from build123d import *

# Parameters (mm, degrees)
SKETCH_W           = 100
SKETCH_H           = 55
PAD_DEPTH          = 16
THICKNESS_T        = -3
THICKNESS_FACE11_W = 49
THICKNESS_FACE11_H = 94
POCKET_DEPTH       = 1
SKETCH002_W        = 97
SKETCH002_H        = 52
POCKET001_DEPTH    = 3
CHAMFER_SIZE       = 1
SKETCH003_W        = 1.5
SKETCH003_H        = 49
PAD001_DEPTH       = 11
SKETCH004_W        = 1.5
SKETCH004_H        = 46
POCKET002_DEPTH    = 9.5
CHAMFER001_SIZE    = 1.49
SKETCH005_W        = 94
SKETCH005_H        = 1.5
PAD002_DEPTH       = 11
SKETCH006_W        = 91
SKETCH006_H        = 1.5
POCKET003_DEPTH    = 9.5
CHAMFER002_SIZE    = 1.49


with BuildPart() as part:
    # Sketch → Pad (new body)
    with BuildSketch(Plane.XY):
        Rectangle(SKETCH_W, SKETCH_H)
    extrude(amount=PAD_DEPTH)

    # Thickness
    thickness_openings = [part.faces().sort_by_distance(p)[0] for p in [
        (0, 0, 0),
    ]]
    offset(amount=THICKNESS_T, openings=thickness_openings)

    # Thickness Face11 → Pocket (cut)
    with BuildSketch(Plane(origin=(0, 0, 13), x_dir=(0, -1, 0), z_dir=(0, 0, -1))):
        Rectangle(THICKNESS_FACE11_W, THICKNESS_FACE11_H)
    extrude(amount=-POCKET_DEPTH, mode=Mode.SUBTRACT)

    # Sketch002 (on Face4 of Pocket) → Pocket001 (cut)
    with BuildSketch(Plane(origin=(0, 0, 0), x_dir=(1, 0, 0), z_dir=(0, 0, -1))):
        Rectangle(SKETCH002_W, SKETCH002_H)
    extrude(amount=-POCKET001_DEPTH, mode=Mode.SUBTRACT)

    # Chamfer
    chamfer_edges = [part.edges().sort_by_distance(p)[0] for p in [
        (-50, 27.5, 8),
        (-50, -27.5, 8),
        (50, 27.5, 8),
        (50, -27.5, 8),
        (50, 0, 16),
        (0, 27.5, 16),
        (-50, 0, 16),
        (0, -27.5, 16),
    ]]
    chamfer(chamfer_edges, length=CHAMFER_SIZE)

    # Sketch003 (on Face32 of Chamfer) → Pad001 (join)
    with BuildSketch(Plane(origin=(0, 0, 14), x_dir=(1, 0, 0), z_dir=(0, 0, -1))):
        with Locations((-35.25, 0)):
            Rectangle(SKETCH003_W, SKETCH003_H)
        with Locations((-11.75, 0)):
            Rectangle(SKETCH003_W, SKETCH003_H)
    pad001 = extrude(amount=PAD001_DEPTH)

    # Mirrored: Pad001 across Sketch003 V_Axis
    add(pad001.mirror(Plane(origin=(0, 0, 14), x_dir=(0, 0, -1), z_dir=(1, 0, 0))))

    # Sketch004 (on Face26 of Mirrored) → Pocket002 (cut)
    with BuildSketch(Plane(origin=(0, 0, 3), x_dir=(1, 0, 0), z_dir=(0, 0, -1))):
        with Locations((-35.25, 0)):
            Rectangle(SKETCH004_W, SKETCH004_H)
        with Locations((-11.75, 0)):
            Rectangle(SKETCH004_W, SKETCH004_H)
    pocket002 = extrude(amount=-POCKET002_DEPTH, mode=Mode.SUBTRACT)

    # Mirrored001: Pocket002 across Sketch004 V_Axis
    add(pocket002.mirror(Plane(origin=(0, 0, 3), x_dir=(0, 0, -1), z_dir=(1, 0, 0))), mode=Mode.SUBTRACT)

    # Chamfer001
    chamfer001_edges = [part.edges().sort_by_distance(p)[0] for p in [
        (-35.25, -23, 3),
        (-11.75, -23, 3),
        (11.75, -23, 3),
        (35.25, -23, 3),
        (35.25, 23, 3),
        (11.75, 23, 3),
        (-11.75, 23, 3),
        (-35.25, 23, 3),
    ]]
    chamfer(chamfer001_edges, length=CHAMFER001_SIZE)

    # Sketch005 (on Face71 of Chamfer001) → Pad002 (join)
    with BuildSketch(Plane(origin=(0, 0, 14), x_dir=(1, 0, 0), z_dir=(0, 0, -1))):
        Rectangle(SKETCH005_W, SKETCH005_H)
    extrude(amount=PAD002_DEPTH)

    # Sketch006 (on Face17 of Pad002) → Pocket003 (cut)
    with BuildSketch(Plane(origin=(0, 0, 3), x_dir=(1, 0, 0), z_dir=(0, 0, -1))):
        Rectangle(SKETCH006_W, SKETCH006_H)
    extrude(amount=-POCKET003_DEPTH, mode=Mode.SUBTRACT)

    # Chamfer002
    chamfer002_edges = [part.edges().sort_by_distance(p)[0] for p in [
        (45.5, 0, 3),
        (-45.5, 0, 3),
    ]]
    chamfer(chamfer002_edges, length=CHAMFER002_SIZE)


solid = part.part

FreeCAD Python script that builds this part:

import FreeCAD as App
import Part
import Sketcher

V = App.Vector
Q = App.Units.Quantity


def edges_at(feature, points):
    """Names of the edges that pass closest to the given points."""
    edges = feature.Shape.Edges
    near = lambda p: min(range(len(edges)), key=lambda i: edges[i].distToShape(Part.Vertex(*p))[0])
    return sorted({f"Edge{near(p) + 1}" for p in points})


def faces_at(feature, points):
    """Names of the faces that lie closest to the given points."""
    faces = feature.Shape.Faces
    near = lambda p: min(range(len(faces)), key=lambda i: faces[i].distToShape(Part.Vertex(*p))[0])
    return sorted({f"Face{near(p) + 1}" for p in points})


def add_polygon(sketch, points):
    """Adds a closed chain of lines whose ends are joined by coincident constraints."""
    first, n = sketch.GeometryCount, len(points)
    for a, b in zip(points, points[1:] + points[:1]):
        sketch.addGeometry(Part.LineSegment(App.Vector(*a, 0), App.Vector(*b, 0)), False)
    for i in range(n):
        sketch.addConstraint(Sketcher.Constraint("Coincident", first + i, 2, first + (i + 1) % n, 1))

doc = App.newDocument("Part")
body = doc.addObject("PartDesign::Body", "Body")

# Sketch on XY plane
sketch1 = body.newObject("Sketcher::SketchObject", "Sketch")
sketch1.AttachmentSupport = (doc.getObject("XY_Plane"), [""])
sketch1.MapMode = "FlatFace"
add_polygon(sketch1, [(-50, 28), (-50, -28), (50, -28), (50, 28)])  # lines 0-3
sketch1.addConstraint([
    Sketcher.Constraint("Vertical", 0),
    Sketcher.Constraint("Horizontal", 1),
    Sketcher.Constraint("Vertical", 2),
    Sketcher.Constraint("Horizontal", 3),
    Sketcher.Constraint("Symmetric", 0, 2, 2, 2, -1, 1),
    Sketcher.Constraint("DistanceX", 1, 1, 1, 2, Q("100 mm")),
    Sketcher.Constraint("DistanceY", 0, 2, 0, 1, Q("55 mm")),
])
pad1 = body.newObject("PartDesign::Pad", "Pad")
pad1.Profile = sketch1
pad1.Length = 16
doc.recompute()

thickness = body.newObject("PartDesign::Thickness", "Thickness")
thickness.Base = (pad1, faces_at(pad1, [(0, 0, 0)]))
thickness.Value = 3
thickness.Reversed = True
thickness.Join = "Arc"

# Sketch on XY plane
sketch2 = body.newObject("Sketcher::SketchObject", "Sketch001")
sketch2.AttachmentSupport = (doc.getObject("XY_Plane"), [""])
sketch2.MapMode = "FlatFace"
sketch2.AttachmentOffset = App.Placement(V(0, 0, 13), App.Rotation())
add_polygon(sketch2, [(-47, 24), (47, 24), (47, -24), (-47, -24)])  # lines 0-3
sketch2.addConstraint([
    Sketcher.Constraint("Horizontal", 0),
    Sketcher.Constraint("Vertical", 1),
    Sketcher.Constraint("Horizontal", 2),
    Sketcher.Constraint("Vertical", 3),
    Sketcher.Constraint("Symmetric", 0, 2, 2, 2, -1, 1),
    Sketcher.Constraint("DistanceX", 0, 1, 0, 2, Q("94 mm")),
    Sketcher.Constraint("DistanceY", 1, 2, 1, 1, Q("49 mm")),
])
pocket1 = body.newObject("PartDesign::Pocket", "Pocket")
pocket1.Profile = sketch2
pocket1.Length = 1
pocket1.Reversed = True

# Sketch on XY plane
sketch3 = body.newObject("Sketcher::SketchObject", "Sketch002")
sketch3.AttachmentSupport = (doc.getObject("XY_Plane"), [""])
sketch3.MapMode = "FlatFace"
add_polygon(sketch3, [(-48, -26), (-48, 26), (48, 26), (48, -26)])  # lines 0-3
sketch3.addConstraint([
    Sketcher.Constraint("Vertical", 0),
    Sketcher.Constraint("Horizontal", 1),
    Sketcher.Constraint("Vertical", 2),
    Sketcher.Constraint("Horizontal", 3),
    Sketcher.Constraint("Symmetric", 0, 2, 2, 2, -1, 1),
    Sketcher.Constraint("DistanceX", 1, 1, 1, 2, Q("97 mm")),
    Sketcher.Constraint("DistanceY", 0, 1, 0, 2, Q("52 mm")),
])
pocket2 = body.newObject("PartDesign::Pocket", "Pocket001")
pocket2.Profile = sketch3
pocket2.Length = 3
pocket2.Reversed = True
doc.recompute()

chamfer = body.newObject("PartDesign::Chamfer", "Chamfer")
chamfer.Base = (pocket2, edges_at(pocket2, [
    (-50, 27.5, 8),
    (-50, -27.5, 8),
    (50, 27.5, 8),
    (50, -27.5, 8),
    (50, 0, 16),
    (0, 27.5, 16),
    (-50, 0, 16),
    (0, -27.5, 16),
]))
chamfer.Size = 1

# Sketch on XY plane
sketch4 = body.newObject("Sketcher::SketchObject", "Sketch003")
sketch4.AttachmentSupport = (doc.getObject("XY_Plane"), [""])
sketch4.MapMode = "FlatFace"
sketch4.AttachmentOffset = App.Placement(V(0, 0, 14), App.Rotation())
add_polygon(sketch4, [(-36, -24.5), (-36, 24.5), (-34.5, 24.5), (-34.5, -24.5)])  # lines 0-3
add_polygon(sketch4, [(-12.5, -24.5), (-12.5, 24.5), (-11, 24.5), (-11, -24.5)])  # lines 4-7
sketch4.addConstraint([
    Sketcher.Constraint("Vertical", 0),
    Sketcher.Constraint("Horizontal", 1),
    Sketcher.Constraint("Vertical", 2),
    Sketcher.Constraint("Horizontal", 3),
    Sketcher.Constraint("Vertical", 4),
    Sketcher.Constraint("Horizontal", 5),
    Sketcher.Constraint("Vertical", 6),
    Sketcher.Constraint("Horizontal", 7),
    Sketcher.Constraint("Horizontal", 1, 2, 4, 2),
    Sketcher.Constraint("Horizontal", 3, 2, 6, 2),
    Sketcher.Constraint("Equal", 3, 5),
    Sketcher.Constraint("DistanceY", 0, 1, 0, 2, Q("49 mm")),
    Sketcher.Constraint("DistanceX", 1, 1, 1, 2, Q("1.5 mm")),
    Sketcher.Constraint("DistanceX", 0, 2, -1, 1, Q("36 mm")),
    Sketcher.Constraint("DistanceX", 5, 2, -1, 1, Q("11 mm")),
    Sketcher.Constraint("DistanceY", -1, 1, 0, 2, Q("24.5 mm")),
])
pad2 = body.newObject("PartDesign::Pad", "Pad001")
pad2.Profile = sketch4
pad2.Length = 11
pad2.Reversed = True
doc.recompute()

mirrored = body.newObject("PartDesign::Mirrored", "Mirrored")
mirrored.Originals = [pad2]
mirrored.MirrorPlane = (doc.getObject("YZ_Plane"), [""])
body.Tip = mirrored

# Sketch on XY plane
sketch5 = body.newObject("Sketcher::SketchObject", "Sketch004")
sketch5.AttachmentSupport = (doc.getObject("XY_Plane"), [""])
sketch5.MapMode = "FlatFace"
sketch5.AttachmentOffset = App.Placement(V(0, 0, 3), App.Rotation())
add_polygon(sketch5, [(-36, -23), (-36, 23), (-34.5, 23), (-34.5, -23)])  # lines 0-3
add_polygon(sketch5, [(-12.5, -23), (-12.5, 23), (-11, 23), (-11, -23)])  # lines 4-7
sketch5.addConstraint([
    Sketcher.Constraint("Vertical", 0),
    Sketcher.Constraint("Horizontal", 1),
    Sketcher.Constraint("Vertical", 2),
    Sketcher.Constraint("Horizontal", 3),
    Sketcher.Constraint("Vertical", 4),
    Sketcher.Constraint("Horizontal", 5),
    Sketcher.Constraint("Vertical", 6),
    Sketcher.Constraint("Horizontal", 7),
    Sketcher.Constraint("Horizontal", 1, 2, 4, 2),
    Sketcher.Constraint("Horizontal", 3, 2, 6, 2),
    Sketcher.Constraint("Equal", 3, 5),
    Sketcher.Constraint("DistanceY", 0, 1, 0, 2, Q("46 mm")),
    Sketcher.Constraint("DistanceX", 1, 1, 1, 2, Q("1.5 mm")),
    Sketcher.Constraint("DistanceX", 0, 2, -1, 1, Q("36 mm")),
    Sketcher.Constraint("DistanceY", -1, 1, 0, 2, Q("23 mm")),
    Sketcher.Constraint("DistanceX", 5, 2, -1, 1, Q("11 mm")),
])
pocket3 = body.newObject("PartDesign::Pocket", "Pocket002")
pocket3.Profile = sketch5
pocket3.Length = 9.5
pocket3.Reversed = True
doc.recompute()

mirrored2 = body.newObject("PartDesign::Mirrored", "Mirrored001")
mirrored2.Originals = [pocket3]
mirrored2.MirrorPlane = (doc.getObject("YZ_Plane"), [""])
body.Tip = mirrored2
doc.recompute()

chamfer2 = body.newObject("PartDesign::Chamfer", "Chamfer001")
chamfer2.Base = (mirrored2, edges_at(mirrored2, [
    (-35.25, -23, 3),
    (-11.75, -23, 3),
    (11.75, -23, 3),
    (35.25, -23, 3),
    (35.25, 23, 3),
    (11.75, 23, 3),
    (-11.75, 23, 3),
    (-35.25, 23, 3),
]))
chamfer2.Size = 1.49

# Sketch on XY plane
sketch6 = body.newObject("Sketcher::SketchObject", "Sketch005")
sketch6.AttachmentSupport = (doc.getObject("XY_Plane"), [""])
sketch6.MapMode = "FlatFace"
sketch6.AttachmentOffset = App.Placement(V(0, 0, 14), App.Rotation())
add_polygon(sketch6, [(-47, -0.8), (-47, 0.8), (47, 0.8), (47, -0.8)])  # lines 0-3
sketch6.addConstraint([
    Sketcher.Constraint("Vertical", 0),
    Sketcher.Constraint("Horizontal", 1),
    Sketcher.Constraint("Vertical", 2),
    Sketcher.Constraint("Horizontal", 3),
    Sketcher.Constraint("Symmetric", 0, 2, 2, 2, -1, 1),
    Sketcher.Constraint("DistanceX", 1, 1, 1, 2, Q("94 mm")),
    Sketcher.Constraint("DistanceY", 0, 1, 0, 2, Q("1.5 mm")),
])
pad3 = body.newObject("PartDesign::Pad", "Pad002")
pad3.Profile = sketch6
pad3.Length = 11
pad3.Reversed = True

# Sketch on XY plane
sketch7 = body.newObject("Sketcher::SketchObject", "Sketch006")
sketch7.AttachmentSupport = (doc.getObject("XY_Plane"), [""])
sketch7.MapMode = "FlatFace"
sketch7.AttachmentOffset = App.Placement(V(0, 0, 3), App.Rotation())
add_polygon(sketch7, [(-45.5, -0.8), (-45.5, 0.8), (45.5, 0.8), (45.5, -0.8)])  # lines 0-3
sketch7.addConstraint([
    Sketcher.Constraint("Vertical", 0),
    Sketcher.Constraint("Horizontal", 1),
    Sketcher.Constraint("Vertical", 2),
    Sketcher.Constraint("Horizontal", 3),
    Sketcher.Constraint("Symmetric", 0, 2, 2, 2, -1, 1),
    Sketcher.Constraint("DistanceX", 1, 1, 1, 2, Q("91 mm")),
    Sketcher.Constraint("DistanceY", 0, 1, 0, 2, Q("1.5 mm")),
])
pocket4 = body.newObject("PartDesign::Pocket", "Pocket003")
pocket4.Profile = sketch7
pocket4.Length = 9.5
pocket4.Reversed = True
doc.recompute()

chamfer3 = body.newObject("PartDesign::Chamfer", "Chamfer002")
chamfer3.Base = (pocket4, edges_at(pocket4, [(45.5, 0, 3), (-45.5, 0, 3)]))
chamfer3.Size = 1.49

doc.recompute()
